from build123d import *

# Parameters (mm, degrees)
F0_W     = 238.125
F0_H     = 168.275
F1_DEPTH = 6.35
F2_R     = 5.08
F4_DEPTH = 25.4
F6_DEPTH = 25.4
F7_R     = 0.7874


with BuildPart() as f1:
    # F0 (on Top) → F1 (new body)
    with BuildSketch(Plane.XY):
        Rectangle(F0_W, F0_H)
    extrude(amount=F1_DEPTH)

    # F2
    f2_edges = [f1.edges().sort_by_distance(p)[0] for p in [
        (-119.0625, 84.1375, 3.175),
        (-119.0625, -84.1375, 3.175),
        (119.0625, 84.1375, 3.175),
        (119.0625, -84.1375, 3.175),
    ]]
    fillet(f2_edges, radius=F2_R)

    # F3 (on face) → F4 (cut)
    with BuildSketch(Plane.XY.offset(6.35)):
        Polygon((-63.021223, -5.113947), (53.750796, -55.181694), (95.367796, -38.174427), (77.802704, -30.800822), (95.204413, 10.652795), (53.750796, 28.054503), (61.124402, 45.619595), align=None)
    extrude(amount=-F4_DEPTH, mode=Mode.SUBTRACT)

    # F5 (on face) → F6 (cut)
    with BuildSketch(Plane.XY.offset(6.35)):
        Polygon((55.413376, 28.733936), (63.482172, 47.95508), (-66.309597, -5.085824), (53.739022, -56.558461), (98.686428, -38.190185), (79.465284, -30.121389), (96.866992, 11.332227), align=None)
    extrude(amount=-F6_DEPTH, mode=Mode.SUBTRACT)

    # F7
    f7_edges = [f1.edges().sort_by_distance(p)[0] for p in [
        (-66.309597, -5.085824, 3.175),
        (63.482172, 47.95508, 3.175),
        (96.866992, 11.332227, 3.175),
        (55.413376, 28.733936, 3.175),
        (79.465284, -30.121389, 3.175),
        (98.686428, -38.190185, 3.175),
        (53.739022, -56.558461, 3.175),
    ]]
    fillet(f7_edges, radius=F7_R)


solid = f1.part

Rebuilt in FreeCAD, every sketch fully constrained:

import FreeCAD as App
import Part
import Sketcher
Q = App.Units.Quantity


def edges_at(feature, points):
    """Names of the edges that pass closest to the given points."""
    edges = feature.Shape.Edges
    near = lambda p: min(range(len(edges)), key=lambda i: edges[i].distToShape(Part.Vertex(*p))[0])
    return sorted({f"Edge{near(p) + 1}" for p in points})

doc = App.newDocument("Part")
params = doc.addObject("Spreadsheet::Sheet", "Params")
for row, (alias, value) in enumerate([
    ("sketch1_width", "9.375 in"),
    ("sketch1_height", "6.625 in"),
    ("pad1_length", "0.25 in"),
    ("fillet_radius", "0.2 in"),
    ("sketch2_length", "1.77 in"),
    ("sketch2_length2", "0.75 in"),
    ("sketch2_length3", "5.28 in"),
    ("pocket1_length", "1 in"),
    ("sketch3_length", "1.77 in"),
    ("pocket2_length", "1 in"),
    ("fillet2_radius", "0.031 in"),
], start=1):
    params.set(f"A{row}", alias)
    params.set(f"B{row}", "=" + value)
    params.setAlias(f"B{row}", alias)

body = doc.addObject("PartDesign::Body", "Body")

# Sketch on XY plane
sketch1 = body.newObject("Sketcher::SketchObject", "Sketch")
sketch1.AttachmentSupport = (doc.getObject("XY_Plane"), [""])
sketch1.MapMode = "FlatFace"
sketch1.addGeometry(Part.LineSegment(App.Vector(-119.0625, 84.1375, 0), App.Vector(-119.0625, -84.1375, 0)), False)
sketch1.addGeometry(Part.LineSegment(App.Vector(-119.0625, -84.1375, 0), App.Vector(119.0625, -84.1375, 0)), False)
sketch1.addGeometry(Part.LineSegment(App.Vector(119.0625, -84.1375, 0), App.Vector(119.0625, 84.1375, 0)), False)
sketch1.addGeometry(Part.LineSegment(App.Vector(119.0625, 84.1375, 0), App.Vector(-119.0625, 84.1375, 0)), False)
sketch1.addConstraint(Sketcher.Constraint("Coincident", 0, 2, 1, 1))
sketch1.addConstraint(Sketcher.Constraint("Coincident", 1, 2, 2, 1))
sketch1.addConstraint(Sketcher.Constraint("Coincident", 2, 2, 3, 1))
sketch1.addConstraint(Sketcher.Constraint("Coincident", 3, 2, 0, 1))
sketch1.addConstraint(Sketcher.Constraint("Vertical", 0))
sketch1.addConstraint(Sketcher.Constraint("Horizontal", 1))
sketch1.addConstraint(Sketcher.Constraint("Vertical", 2))
sketch1.addConstraint(Sketcher.Constraint("Horizontal", 3))
sketch1.addConstraint(Sketcher.Constraint("Symmetric", 0, 2, 2, 2, -1, 1))
sketch1.addConstraint(Sketcher.Constraint("DistanceX", 1, 1, 1, 2, Q("9.375 in")))
sketch1.addConstraint(Sketcher.Constraint("DistanceY", 0, 2, 0, 1, Q("6.625 in")))
sketch1.setExpression("Constraints[9]", "Params.sketch1_width")
sketch1.setExpression("Constraints[10]", "Params.sketch1_height")
pad1 = body.newObject("PartDesign::Pad", "Pad")
pad1.Profile = sketch1
pad1.setExpression("Length", "Params.pad1_length")
doc.recompute()

fillet = body.newObject("PartDesign::Fillet", "Fillet")
fillet.Base = (pad1, edges_at(pad1, [
    (-119.062, 84.138, 3.175),
    (-119.062, -84.138, 3.175),
    (119.062, 84.138, 3.175),
    (119.062, -84.138, 3.175),
]))
fillet.setExpression("Radius", "Params.fillet_radius")

# Sketch on XY plane
sketch2 = body.newObject("Sketcher::SketchObject", "Sketch001")
sketch2.AttachmentSupport = (doc.getObject("XY_Plane"), [""])
sketch2.MapMode = "FlatFace"
sketch2.AttachmentOffset = App.Placement(App.Vector(0, 0, 0.25 * 25.4), App.Rotation())
sketch2.addGeometry(Part.LineSegment(App.Vector(-63.021223, -5.113947, 0), App.Vector(53.750796, -55.181694, 0)), False)
sketch2.addGeometry(Part.LineSegment(App.Vector(53.750796, -55.181694, 0), App.Vector(95.367796, -38.174427, 0)), False)
sketch2.addGeometry(Part.LineSegment(App.Vector(95.367796, -38.174427, 0), App.Vector(77.802704, -30.800822, 0)), False)
sketch2.addGeometry(Part.LineSegment(App.Vector(77.802704, -30.800822, 0), App.Vector(95.204413, 10.652795, 0)), False)
sketch2.addGeometry(Part.LineSegment(App.Vector(95.204413, 10.652795, 0), App.Vector(53.750796, 28.054503, 0)), False)
sketch2.addGeometry(Part.LineSegment(App.Vector(53.750796, 28.054503, 0), App.Vector(61.124402, 45.619595, 0)), False)
sketch2.addGeometry(Part.LineSegment(App.Vector(61.124402, 45.619595, 0), App.Vector(-63.021223, -5.113947, 0)), False)
sketch2.addConstraint(Sketcher.Constraint("Coincident", 0, 2, 1, 1))
sketch2.addConstraint(Sketcher.Constraint("Coincident", 1, 2, 2, 1))
sketch2.addConstraint(Sketcher.Constraint("Coincident", 2, 2, 3, 1))
sketch2.addConstraint(Sketcher.Constraint("Coincident", 3, 2, 4, 1))
sketch2.addConstraint(Sketcher.Constraint("Coincident", 4, 2, 5, 1))
sketch2.addConstraint(Sketcher.Constraint("Coincident", 5, 2, 6, 1))
sketch2.addConstraint(Sketcher.Constraint("Coincident", 6, 2, 0, 1))
sketch2.addConstraint(Sketcher.Constraint("Perpendicular", 2, 3))
sketch2.addConstraint(Sketcher.Constraint("Perpendicular", 3, 4))
sketch2.addConstraint(Sketcher.Constraint("Perpendicular", 4, 5))
sketch2.addConstraint(Sketcher.Constraint("Parallel", 1, 6))
sketch2.addConstraint(Sketcher.Constraint("Vertical", 0, 2, 4, 2))
sketch2.addConstraint(Sketcher.Constraint("Equal", 1, 3))
sketch2.addConstraint(Sketcher.Constraint("Equal", 3, 4))
sketch2.addConstraint(Sketcher.Constraint("Equal", 2, 5))
sketch2.addConstraint(Sketcher.Constraint("Distance", 1, Q("1.77 in")))
sketch2.addConstraint(Sketcher.Constraint("Distance", 2, Q("0.75 in")))
sketch2.addConstraint(Sketcher.Constraint("Distance", 6, Q("5.28 in")))
sketch2.addConstraint(Sketcher.Constraint("DistanceX", 0, 2, 1, 2, Q("41.617 mm")))
sketch2.addConstraint(Sketcher.Constraint("DistanceY", 2, 2, -1, 1, Q("30.800822 mm")))
sketch2.addConstraint(Sketcher.Constraint("DistanceX", -1, 1, 0, 2, Q("53.750796 mm")))
sketch2.setExpression("Constraints[15]", "Params.sketch2_length")
sketch2.setExpression("Constraints[16]", "Params.sketch2_length2")
sketch2.setExpression("Constraints[17]", "Params.sketch2_length3")
pocket1 = body.newObject("PartDesign::Pocket", "Pocket")
pocket1.Profile = sketch2
pocket1.setExpression("Length", "Params.pocket1_length")

# Sketch on XY plane
sketch3 = body.newObject("Sketcher::SketchObject", "Sketch002")
sketch3.AttachmentSupport = (doc.getObject("XY_Plane"), [""])
sketch3.MapMode = "FlatFace"
sketch3.AttachmentOffset = App.Placement(App.Vector(0, 0, 0.25 * 25.4), App.Rotation())
sketch3.addGeometry(Part.LineSegment(App.Vector(55.413376, 28.733936, 0), App.Vector(63.482172, 47.95508, 0)), False)
sketch3.addGeometry(Part.LineSegment(App.Vector(63.482172, 47.95508, 0), App.Vector(-66.309597, -5.085824, 0)), False)
sketch3.addGeometry(Part.LineSegment(App.Vector(-66.309597, -5.085824, 0), App.Vector(53.739022, -56.558461, 0)), False)
sketch3.addGeometry(Part.LineSegment(App.Vector(53.739022, -56.558461, 0), App.Vector(98.686428, -38.190185, 0)), False)
sketch3.addGeometry(Part.LineSegment(App.Vector(98.686428, -38.190185, 0), App.Vector(79.465284, -30.121389, 0)), False)
sketch3.addGeometry(Part.LineSegment(App.Vector(79.465284, -30.121389, 0), App.Vector(96.866992, 11.332227, 0)), False)
sketch3.addGeometry(Part.LineSegment(App.Vector(96.866992, 11.332227, 0), App.Vector(55.413376, 28.733936, 0)), False)
sketch3.addConstraint(Sketcher.Constraint("Coincident", 0, 2, 1, 1))
sketch3.addConstraint(Sketcher.Constraint("Coincident", 1, 2, 2, 1))
sketch3.addConstraint(Sketcher.Constraint("Coincident", 2, 2, 3, 1))
sketch3.addConstraint(Sketcher.Constraint("Coincident", 3, 2, 4, 1))
sketch3.addConstraint(Sketcher.Constraint("Coincident", 4, 2, 5, 1))
sketch3.addConstraint(Sketcher.Constraint("Coincident", 5, 2, 6, 1))
sketch3.addConstraint(Sketcher.Constraint("Coincident", 6, 2, 0, 1))
sketch3.addConstraint(Sketcher.Constraint("Parallel", 1, 3))
sketch3.addConstraint(Sketcher.Constraint("Perpendicular", 0, 4))
sketch3.addConstraint(Sketcher.Constraint("Perpendicular", 4, 5))
sketch3.addConstraint(Sketcher.Constraint("Perpendicular", 5, 6))
sketch3.addConstraint(Sketcher.Constraint("Equal", 0, 4))
sketch3.addConstraint(Sketcher.Constraint("Equal", 5, 6))
sketch3.addConstraint(Sketcher.Constraint("Distance", 5, Q("1.77 in")))
sketch3.addConstraint(Sketcher.Constraint("Distance", 0, Q("20.846051 mm")))
sketch3.addConstraint(Sketcher.Constraint("Distance", 2, Q("130.618158 mm")))
sketch3.addConstraint(Sketcher.Constraint("Distance", 3, Q("48.555771 mm")))
sketch3.addConstraint(Sketcher.Constraint("DistanceX", -1, 1, 0, 2, Q("63.482172 mm")))
sketch3.addConstraint(Sketcher.Constraint("DistanceY", -1, 1, 0, 2, Q("47.95508 mm")))
sketch3.addConstraint(Sketcher.Constraint("DistanceY", 2, 2, -1, 1, Q("56.558461 mm")))
sketch3.addConstraint(Sketcher.Constraint("DistanceX", -1, 1, 3, 2, Q("98.686428 mm")))
sketch3.setExpression("Constraints[13]", "Params.sketch3_length")
pocket2 = body.newObject("PartDesign::Pocket", "Pocket001")
pocket2.Profile = sketch3
pocket2.setExpression("Length", "Params.pocket2_length")
doc.recompute()

fillet2 = body.newObject("PartDesign::Fillet", "Fillet001")
fillet2.Base = (pocket2, edges_at(pocket2, [
    (-66.31, -5.086, 3.175),
    (63.482, 47.955, 3.175),
    (96.867, 11.332, 3.175),
    (55.413, 28.734, 3.175),
    (79.465, -30.121, 3.175),
    (98.686, -38.19, 3.175),
    (53.739, -56.558, 3.175),
]))
fillet2.setExpression("Radius", "Params.fillet2_radius")

doc.recompute()
